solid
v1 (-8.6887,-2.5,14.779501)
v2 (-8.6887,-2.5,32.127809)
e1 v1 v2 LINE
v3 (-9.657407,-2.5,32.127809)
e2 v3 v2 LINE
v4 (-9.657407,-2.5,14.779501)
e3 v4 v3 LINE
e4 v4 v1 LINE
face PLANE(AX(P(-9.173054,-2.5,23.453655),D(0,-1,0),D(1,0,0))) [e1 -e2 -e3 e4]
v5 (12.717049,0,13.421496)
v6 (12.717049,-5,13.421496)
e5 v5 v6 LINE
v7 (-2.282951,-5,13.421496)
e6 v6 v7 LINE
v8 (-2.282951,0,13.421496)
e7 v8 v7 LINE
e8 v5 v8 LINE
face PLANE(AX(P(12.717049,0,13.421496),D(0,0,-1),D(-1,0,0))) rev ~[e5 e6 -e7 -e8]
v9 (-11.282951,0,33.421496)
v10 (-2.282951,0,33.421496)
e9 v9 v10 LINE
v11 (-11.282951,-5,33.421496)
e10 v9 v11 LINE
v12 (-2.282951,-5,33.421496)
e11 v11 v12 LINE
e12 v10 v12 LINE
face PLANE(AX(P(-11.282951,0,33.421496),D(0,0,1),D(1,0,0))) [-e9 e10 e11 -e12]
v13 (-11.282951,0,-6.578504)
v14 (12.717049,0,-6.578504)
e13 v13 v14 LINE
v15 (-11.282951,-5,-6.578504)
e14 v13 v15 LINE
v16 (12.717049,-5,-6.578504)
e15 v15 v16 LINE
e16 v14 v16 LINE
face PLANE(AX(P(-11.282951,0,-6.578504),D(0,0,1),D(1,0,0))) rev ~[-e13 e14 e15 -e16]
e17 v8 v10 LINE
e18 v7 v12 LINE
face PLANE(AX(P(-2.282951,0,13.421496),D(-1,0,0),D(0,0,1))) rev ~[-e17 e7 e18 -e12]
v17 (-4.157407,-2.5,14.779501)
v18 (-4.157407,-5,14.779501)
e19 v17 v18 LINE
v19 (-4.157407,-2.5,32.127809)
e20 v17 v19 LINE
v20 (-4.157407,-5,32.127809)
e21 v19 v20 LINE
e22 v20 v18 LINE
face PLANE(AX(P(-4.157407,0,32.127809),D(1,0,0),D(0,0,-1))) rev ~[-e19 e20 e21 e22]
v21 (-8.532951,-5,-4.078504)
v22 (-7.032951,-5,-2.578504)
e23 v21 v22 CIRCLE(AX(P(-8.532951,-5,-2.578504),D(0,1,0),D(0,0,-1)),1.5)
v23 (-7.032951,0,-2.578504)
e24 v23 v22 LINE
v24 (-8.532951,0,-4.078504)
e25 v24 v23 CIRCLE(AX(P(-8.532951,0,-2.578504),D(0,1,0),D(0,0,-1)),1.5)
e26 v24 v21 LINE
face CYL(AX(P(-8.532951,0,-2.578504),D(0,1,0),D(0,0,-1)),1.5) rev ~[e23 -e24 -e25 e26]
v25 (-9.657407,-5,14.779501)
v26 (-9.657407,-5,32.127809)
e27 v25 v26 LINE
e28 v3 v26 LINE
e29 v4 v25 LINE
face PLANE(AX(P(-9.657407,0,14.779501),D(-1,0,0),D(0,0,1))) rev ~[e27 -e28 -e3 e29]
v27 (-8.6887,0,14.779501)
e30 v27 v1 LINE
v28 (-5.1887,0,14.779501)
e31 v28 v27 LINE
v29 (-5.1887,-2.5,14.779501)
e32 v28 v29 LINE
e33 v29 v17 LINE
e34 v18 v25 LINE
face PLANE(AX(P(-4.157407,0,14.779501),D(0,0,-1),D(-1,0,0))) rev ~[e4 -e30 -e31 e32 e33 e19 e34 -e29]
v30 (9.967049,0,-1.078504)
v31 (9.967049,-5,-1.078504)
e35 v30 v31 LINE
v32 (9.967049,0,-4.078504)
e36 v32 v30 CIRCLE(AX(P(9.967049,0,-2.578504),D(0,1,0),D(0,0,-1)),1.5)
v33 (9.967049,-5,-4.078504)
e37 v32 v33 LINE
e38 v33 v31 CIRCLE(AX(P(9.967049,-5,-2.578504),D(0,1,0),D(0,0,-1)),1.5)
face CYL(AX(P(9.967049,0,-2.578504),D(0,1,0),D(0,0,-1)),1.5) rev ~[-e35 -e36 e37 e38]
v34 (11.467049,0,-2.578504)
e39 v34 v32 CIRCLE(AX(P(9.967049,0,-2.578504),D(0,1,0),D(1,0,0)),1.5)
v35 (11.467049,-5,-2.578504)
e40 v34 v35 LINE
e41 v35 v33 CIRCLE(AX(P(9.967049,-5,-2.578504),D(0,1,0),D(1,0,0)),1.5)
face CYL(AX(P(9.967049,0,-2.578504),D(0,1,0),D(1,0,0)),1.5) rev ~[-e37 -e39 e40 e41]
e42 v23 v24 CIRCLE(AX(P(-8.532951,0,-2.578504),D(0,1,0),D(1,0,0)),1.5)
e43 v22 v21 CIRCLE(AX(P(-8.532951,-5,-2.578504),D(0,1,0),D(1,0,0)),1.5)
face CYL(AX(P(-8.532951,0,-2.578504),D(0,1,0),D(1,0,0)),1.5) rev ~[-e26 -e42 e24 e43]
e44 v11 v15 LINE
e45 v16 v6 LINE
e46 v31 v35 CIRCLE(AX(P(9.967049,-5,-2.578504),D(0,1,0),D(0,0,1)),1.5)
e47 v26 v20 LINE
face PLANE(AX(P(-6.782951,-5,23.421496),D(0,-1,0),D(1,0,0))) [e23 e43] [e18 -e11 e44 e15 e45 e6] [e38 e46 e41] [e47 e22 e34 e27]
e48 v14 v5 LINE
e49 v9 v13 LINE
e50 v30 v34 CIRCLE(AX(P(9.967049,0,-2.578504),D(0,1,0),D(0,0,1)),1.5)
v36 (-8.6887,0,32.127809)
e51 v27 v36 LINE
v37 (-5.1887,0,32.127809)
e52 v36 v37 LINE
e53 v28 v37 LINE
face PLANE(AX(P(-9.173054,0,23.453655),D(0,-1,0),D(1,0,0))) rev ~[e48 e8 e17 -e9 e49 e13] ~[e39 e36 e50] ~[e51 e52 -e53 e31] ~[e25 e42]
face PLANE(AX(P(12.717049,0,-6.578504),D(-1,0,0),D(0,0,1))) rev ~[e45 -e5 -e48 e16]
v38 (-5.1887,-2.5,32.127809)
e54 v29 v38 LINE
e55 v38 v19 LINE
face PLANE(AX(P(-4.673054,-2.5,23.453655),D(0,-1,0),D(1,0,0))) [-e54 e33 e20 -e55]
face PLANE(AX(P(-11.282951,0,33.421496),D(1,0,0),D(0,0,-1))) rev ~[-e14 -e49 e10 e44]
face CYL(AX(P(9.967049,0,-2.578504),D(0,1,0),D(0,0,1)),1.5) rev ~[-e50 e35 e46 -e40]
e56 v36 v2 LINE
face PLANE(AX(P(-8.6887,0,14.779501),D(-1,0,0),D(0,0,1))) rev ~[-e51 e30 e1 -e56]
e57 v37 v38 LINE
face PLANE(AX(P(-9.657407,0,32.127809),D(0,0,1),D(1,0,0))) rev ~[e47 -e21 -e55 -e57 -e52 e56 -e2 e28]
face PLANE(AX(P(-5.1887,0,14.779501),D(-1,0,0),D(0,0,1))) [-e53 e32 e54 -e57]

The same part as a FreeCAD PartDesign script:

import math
import FreeCAD as App
import Part
import Sketcher
from FreeCAD import Vector

doc = App.newDocument("Part")
body = doc.addObject("PartDesign::Body", "Body")

sketch1 = body.newObject("Sketcher::SketchObject", "Sketch")
sketch1.AttachmentSupport = (doc.getObject("XZ_Plane"), [""])
sketch1.MapMode = "FlatFace"
sketch1.addGeometry([
    Part.LineSegment(Vector(-11.3, 33.4, 0), Vector(-11.3, -6.6, 0)),
    Part.LineSegment(Vector(-11.3, -6.6, 0), Vector(12.7, -6.6, 0)),
    Part.LineSegment(Vector(12.7, -6.6, 0), Vector(12.7, 13.4, 0)),
    Part.LineSegment(Vector(12.7, 13.4, 0), Vector(-2.3, 13.4, 0)),
    Part.LineSegment(Vector(-2.3, 13.4, 0), Vector(-2.3, 33.4, 0)),
    Part.LineSegment(Vector(-2.3, 33.4, 0), Vector(-11.3, 33.4, 0)),
    Part.ArcOfCircle(Part.Circle(Vector(-8.5, -2.6, 0), Vector(0, 0, 1), 1.5), math.radians(0), math.radians(270)),
    Part.ArcOfCircle(Part.Circle(Vector(-8.5, -2.6, 0), Vector(0, 0, 1), 1.5), math.radians(-90), math.radians(0)),
    Part.ArcOfCircle(Part.Circle(Vector(10, -2.6, 0), Vector(0, 0, 1), 1.5), math.radians(0), math.radians(90)),
    Part.ArcOfCircle(Part.Circle(Vector(10, -2.6, 0), Vector(0, 0, 1), 1.5), math.radians(-90), math.radians(0)),
    Part.ArcOfCircle(Part.Circle(Vector(10, -2.6, 0), Vector(0, 0, 1), 1.5), math.radians(90), math.radians(270)),
    Part.LineSegment(Vector(-4.2, 14.8, 0), Vector(-9.7, 14.8, 0)),
    Part.LineSegment(Vector(-9.7, 14.8, 0), Vector(-9.7, 32.1, 0)),
    Part.LineSegment(Vector(-9.7, 32.1, 0), Vector(-4.2, 32.1, 0)),
    Part.LineSegment(Vector(-4.2, 32.1, 0), Vector(-4.2, 14.8, 0)),
], False)
sketch1.addConstraint([
    Sketcher.Constraint("Coincident", 0, 2, 1, 1),
    Sketcher.Constraint("Coincident", 1, 2, 2, 1),
    Sketcher.Constraint("Coincident", 2, 2, 3, 1),
    Sketcher.Constraint("Coincident", 3, 2, 4, 1),
    Sketcher.Constraint("Coincident", 4, 2, 5, 1),
    Sketcher.Constraint("Coincident", 5, 2, 0, 1),
    Sketcher.Constraint("Tangent", 6, 1, 7, 2),
    Sketcher.Constraint("Coincident", 7, 1, 6, 2),
    Sketcher.Constraint("Tangent", 8, 1, 9, 2),
    Sketcher.Constraint("Tangent", 9, 1, 10, 2),
    Sketcher.Constraint("Tangent", 10, 1, 8, 2),
    Sketcher.Constraint("Coincident", 11, 2, 12, 1),
    Sketcher.Constraint("Coincident", 12, 2, 13, 1),
    Sketcher.Constraint("Coincident", 13, 2, 14, 1),
    Sketcher.Constraint("Coincident", 14, 2, 11, 1),
    Sketcher.Constraint("Vertical", 0),
    Sketcher.Constraint("Horizontal", 1),
    Sketcher.Constraint("Vertical", 2),
    Sketcher.Constraint("Horizontal", 3),
    Sketcher.Constraint("Vertical", 4),
    Sketcher.Constraint("Horizontal", 5),
    Sketcher.Constraint("Horizontal", 11),
    Sketcher.Constraint("Vertical", 12),
    Sketcher.Constraint("Horizontal", 13),
    Sketcher.Constraint("Vertical", 14),
    Sketcher.Constraint("Equal", 7, 8),
    Sketcher.Constraint("Horizontal", 7, 3, 8, 3),
    Sketcher.Constraint("Horizontal", 10, 3, 6, 1),
    Sketcher.Constraint("Horizontal", 6, 1, 8, 1),
    Sketcher.Constraint("Vertical", 6, 3, 7, 1),
    Sketcher.Constraint("Vertical", 10, 3, 9, 1),
    Sketcher.Constraint("Vertical", 9, 1, 10, 1),
    Sketcher.Constraint("Equal", 2, 4),
    Sketcher.Constraint("Radius", 6, 1.5),
    Sketcher.Constraint("DistanceX", 1, 1, 1, 2, 24.0),
    Sketcher.Constraint("DistanceX", 3, 2, 3, 1, 15.0),
    Sketcher.Constraint("DistanceY", 0, 2, 0, 1, 40.0),
    Sketcher.Constraint("DistanceX", 11, 2, 11, 1, 5.5),
    Sketcher.Constraint("DistanceY", 0, 2, 6, 3, 4.0),
    Sketcher.Constraint("DistanceX", 6, 1, 8, 3, 17.0),
    Sketcher.Constraint("DistanceX", 0, 2, 6, 3, 2.75),
    Sketcher.Constraint("DistanceY", 12, 1, 12, 2, 17.348308),
    Sketcher.Constraint("DistanceY", -1, 1, 11, 2, 14.779501),
    Sketcher.Constraint("DistanceX", 6, 3, -1, 1, 8.532951),
    Sketcher.Constraint("DistanceY", 6, 3, -1, 1, 2.578504),
    Sketcher.Constraint("DistanceX", 11, 2, -1, 1, 9.657407),
])
pad1 = body.newObject("PartDesign::Pad", "Pad")
pad1.Profile = sketch1
pad1.Length = 5

sketch2 = body.newObject("Sketcher::SketchObject", "Sketch001")
sketch2.AttachmentSupport = (doc.getObject("XZ_Plane"), [""])
sketch2.MapMode = "FlatFace"
sketch2.addGeometry([
    Part.LineSegment(Vector(-9.7, 32.1, 0), Vector(-9.7, 14.8, 0)),
    Part.LineSegment(Vector(-9.7, 14.8, 0), Vector(-8.7, 14.8, 0)),
    Part.LineSegment(Vector(-8.7, 14.8, 0), Vector(-8.7, 32.1, 0)),
    Part.LineSegment(Vector(-8.7, 32.1, 0), Vector(-9.7, 32.1, 0)),
    Part.LineSegment(Vector(-5.2, 32.1, 0), Vector(-5.2, 14.8, 0)),
    Part.LineSegment(Vector(-5.2, 14.8, 0), Vector(-4.2, 14.8, 0)),
    Part.LineSegment(Vector(-4.2, 14.8, 0), Vector(-4.2, 32.1, 0)),
    Part.LineSegment(Vector(-4.2, 32.1, 0), Vector(-5.2, 32.1, 0)),
], False)
sketch2.addConstraint([
    Sketcher.Constraint("Coincident", 0, 2, 1, 1),
    Sketcher.Constraint("Coincident", 1, 2, 2, 1),
    Sketcher.Constraint("Coincident", 2, 2, 3, 1),
    Sketcher.Constraint("Coincident", 3, 2, 0, 1),
    Sketcher.Constraint("Coincident", 4, 2, 5, 1),
    Sketcher.Constraint("Coincident", 5, 2, 6, 1),
    Sketcher.Constraint("Coincident", 6, 2, 7, 1),
    Sketcher.Constraint("Coincident", 7, 2, 4, 1),
    Sketcher.Constraint("Vertical", 0),
    Sketcher.Constraint("Horizontal", 1),
    Sketcher.Constraint("Vertical", 2),
    Sketcher.Constraint("Horizontal", 3),
    Sketcher.Constraint("Vertical", 4),
    Sketcher.Constraint("Horizontal", 5),
    Sketcher.Constraint("Vertical", 6),
    Sketcher.Constraint("Horizontal", 7),
    Sketcher.Constraint("Horizontal", 1, 2, 4, 2),
    Sketcher.Constraint("Horizontal", 3, 2, 6, 2),
    Sketcher.Constraint("DistanceX", 1, 2, 4, 2, 3.5),
    Sketcher.Constraint("DistanceX", 0, 2, 5, 2, 5.5),
    Sketcher.Constraint("DistanceY", 0, 2, 0, 1, 17.348308),
    Sketcher.Constraint("DistanceY", -1, 1, 0, 2, 14.779501),
    Sketcher.Constraint("DistanceX", 1, 2, -1, 1, 8.6887),
    Sketcher.Constraint("DistanceX", 1, 1, 1, 2, 0.968707),
])
pad2 = body.newObject("PartDesign::Pad", "Pad001")
pad2.Profile = sketch2
pad2.Length = 2.5

doc.recompute()
